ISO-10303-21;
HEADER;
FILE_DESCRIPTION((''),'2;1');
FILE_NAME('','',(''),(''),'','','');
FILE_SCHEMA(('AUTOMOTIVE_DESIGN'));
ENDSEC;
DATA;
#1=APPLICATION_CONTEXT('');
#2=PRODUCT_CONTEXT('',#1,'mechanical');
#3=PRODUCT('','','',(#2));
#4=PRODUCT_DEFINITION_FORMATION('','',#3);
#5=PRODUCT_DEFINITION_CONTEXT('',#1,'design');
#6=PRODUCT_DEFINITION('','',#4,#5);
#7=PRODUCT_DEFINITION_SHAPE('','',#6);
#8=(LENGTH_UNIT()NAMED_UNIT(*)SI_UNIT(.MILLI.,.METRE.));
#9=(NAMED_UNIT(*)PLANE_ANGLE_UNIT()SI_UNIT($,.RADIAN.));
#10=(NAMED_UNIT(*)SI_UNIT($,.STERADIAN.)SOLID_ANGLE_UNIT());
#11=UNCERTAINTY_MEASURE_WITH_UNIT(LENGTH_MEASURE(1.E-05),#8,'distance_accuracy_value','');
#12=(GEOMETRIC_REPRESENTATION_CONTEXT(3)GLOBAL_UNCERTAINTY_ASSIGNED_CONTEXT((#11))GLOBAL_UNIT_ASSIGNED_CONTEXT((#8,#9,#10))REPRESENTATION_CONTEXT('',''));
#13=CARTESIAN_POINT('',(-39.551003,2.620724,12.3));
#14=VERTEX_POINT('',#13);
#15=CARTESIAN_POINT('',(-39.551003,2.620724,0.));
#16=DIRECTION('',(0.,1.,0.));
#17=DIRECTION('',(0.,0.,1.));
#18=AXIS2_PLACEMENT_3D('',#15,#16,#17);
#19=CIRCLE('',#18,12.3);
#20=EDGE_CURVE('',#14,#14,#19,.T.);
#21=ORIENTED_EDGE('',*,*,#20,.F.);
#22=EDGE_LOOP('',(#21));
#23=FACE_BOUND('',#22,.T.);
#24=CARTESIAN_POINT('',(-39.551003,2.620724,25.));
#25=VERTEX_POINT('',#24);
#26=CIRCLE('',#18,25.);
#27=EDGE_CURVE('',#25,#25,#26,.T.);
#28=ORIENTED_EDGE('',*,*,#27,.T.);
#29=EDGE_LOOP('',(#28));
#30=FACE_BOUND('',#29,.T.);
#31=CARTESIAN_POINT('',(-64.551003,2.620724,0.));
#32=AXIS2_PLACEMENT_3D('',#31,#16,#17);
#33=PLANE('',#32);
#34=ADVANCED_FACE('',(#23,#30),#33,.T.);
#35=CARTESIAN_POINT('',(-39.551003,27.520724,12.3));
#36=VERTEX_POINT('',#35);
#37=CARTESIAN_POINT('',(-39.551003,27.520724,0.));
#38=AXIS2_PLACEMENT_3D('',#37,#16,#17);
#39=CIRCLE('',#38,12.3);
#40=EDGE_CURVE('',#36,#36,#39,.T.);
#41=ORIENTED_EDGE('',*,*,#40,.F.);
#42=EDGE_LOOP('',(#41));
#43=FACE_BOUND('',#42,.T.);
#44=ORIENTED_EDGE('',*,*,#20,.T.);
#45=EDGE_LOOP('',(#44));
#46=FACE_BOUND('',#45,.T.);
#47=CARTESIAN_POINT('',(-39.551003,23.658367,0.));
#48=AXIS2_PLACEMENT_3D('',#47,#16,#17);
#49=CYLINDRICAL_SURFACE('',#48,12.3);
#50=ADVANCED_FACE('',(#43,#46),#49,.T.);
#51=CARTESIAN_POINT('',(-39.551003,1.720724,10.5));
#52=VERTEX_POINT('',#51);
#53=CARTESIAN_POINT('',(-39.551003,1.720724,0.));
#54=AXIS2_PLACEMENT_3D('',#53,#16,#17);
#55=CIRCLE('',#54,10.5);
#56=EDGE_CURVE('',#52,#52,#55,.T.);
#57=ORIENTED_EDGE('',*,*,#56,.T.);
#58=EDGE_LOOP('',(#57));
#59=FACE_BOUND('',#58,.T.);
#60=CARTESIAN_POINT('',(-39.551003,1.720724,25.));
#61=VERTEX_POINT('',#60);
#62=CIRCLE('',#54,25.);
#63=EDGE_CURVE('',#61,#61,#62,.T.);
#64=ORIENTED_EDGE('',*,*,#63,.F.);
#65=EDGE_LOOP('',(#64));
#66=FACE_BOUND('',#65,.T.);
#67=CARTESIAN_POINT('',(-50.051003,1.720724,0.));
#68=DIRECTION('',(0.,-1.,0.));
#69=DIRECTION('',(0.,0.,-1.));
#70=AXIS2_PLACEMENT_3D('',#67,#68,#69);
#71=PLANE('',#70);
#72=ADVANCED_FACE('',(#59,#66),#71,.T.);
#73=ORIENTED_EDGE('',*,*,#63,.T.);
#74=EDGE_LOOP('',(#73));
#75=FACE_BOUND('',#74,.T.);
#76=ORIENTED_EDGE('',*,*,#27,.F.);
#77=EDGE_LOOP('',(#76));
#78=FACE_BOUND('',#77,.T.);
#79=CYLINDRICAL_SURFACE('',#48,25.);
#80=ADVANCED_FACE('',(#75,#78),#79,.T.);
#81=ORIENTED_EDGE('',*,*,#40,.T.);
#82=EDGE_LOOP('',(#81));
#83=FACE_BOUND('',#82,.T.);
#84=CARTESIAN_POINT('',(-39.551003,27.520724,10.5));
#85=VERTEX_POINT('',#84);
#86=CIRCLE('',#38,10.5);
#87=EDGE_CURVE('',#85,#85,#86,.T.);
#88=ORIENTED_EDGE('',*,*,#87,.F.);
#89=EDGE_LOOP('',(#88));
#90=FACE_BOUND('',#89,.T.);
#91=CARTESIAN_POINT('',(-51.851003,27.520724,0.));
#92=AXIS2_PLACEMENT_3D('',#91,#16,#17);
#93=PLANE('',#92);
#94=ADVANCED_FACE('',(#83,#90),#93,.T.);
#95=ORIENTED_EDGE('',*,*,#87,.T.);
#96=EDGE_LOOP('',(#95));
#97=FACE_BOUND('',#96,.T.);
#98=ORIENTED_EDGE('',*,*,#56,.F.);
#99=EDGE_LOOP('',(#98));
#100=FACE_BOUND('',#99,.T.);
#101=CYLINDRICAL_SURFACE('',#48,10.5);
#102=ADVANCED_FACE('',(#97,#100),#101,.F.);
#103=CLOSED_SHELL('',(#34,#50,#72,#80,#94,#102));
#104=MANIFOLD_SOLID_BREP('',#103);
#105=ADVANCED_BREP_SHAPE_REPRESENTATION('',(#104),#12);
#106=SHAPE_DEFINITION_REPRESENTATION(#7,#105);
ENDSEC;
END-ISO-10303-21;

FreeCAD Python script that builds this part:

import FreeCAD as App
import Part
import Sketcher
Q = App.Units.Quantity


def add_polygon(sketch, points):
    """Adds a closed chain of lines whose ends are joined by coincident constraints."""
    first, n = sketch.GeometryCount, len(points)
    for a, b in zip(points, points[1:] + points[:1]):
        sketch.addGeometry(Part.LineSegment(App.Vector(*a, 0), App.Vector(*b, 0)), False)
    for i in range(n):
        sketch.addConstraint(Sketcher.Constraint("Coincident", first + i, 2, first + (i + 1) % n, 1))

doc = App.newDocument("Part")
body = doc.addObject("PartDesign::Body", "Body")

# Sketch on XY plane
sketch1 = doc.addObject("Sketcher::SketchObject", "Sketch")
body.addObject(sketch1)
sketch1.AttachmentSupport = (doc.XY_Plane, [""])
sketch1.MapMode = "FlatFace"
add_polygon(sketch1, [(-64.6, 1.7), (-50.1, 1.7), (-50.1, 27.5), (-51.9, 27.5), (-51.9, 2.6), (-64.6, 2.6)])  # lines 0-5
sketch1.addGeometry(Part.LineSegment(App.Vector(-39.6, 27.5, 0), App.Vector(-39.6, 1.7, 0)), True)  # axis
sketch1.addConstraint([
    Sketcher.Constraint("Horizontal", 0),
    Sketcher.Constraint("Vertical", 1),
    Sketcher.Constraint("Horizontal", 2),
    Sketcher.Constraint("Vertical", 3),
    Sketcher.Constraint("Horizontal", 4),
    Sketcher.Constraint("Vertical", 5),
    Sketcher.Constraint("Vertical", 6),
    Sketcher.Constraint("Horizontal", 2, 2, 6, 1),
    Sketcher.Constraint("Horizontal", 5, 2, 6, 2),
    Sketcher.Constraint("DistanceX", 0, 1, 0, 2, Q("14.5 mm")),
    Sketcher.Constraint("DistanceX", 2, 2, 2, 1, Q("1.8 mm")),
    Sketcher.Constraint("DistanceY", 1, 1, 1, 2, Q("25.8 mm")),
    Sketcher.Constraint("DistanceY", 3, 2, 3, 1, Q("24.9 mm")),
    Sketcher.Constraint("DistanceX", 4, 2, 6, 1, Q("25 mm")),
    Sketcher.Constraint("DistanceX", 0, 2, -1, 1, Q("50.051003 mm")),
    Sketcher.Constraint("DistanceY", -1, 1, 0, 2, Q("1.720724 mm")),
])
revolution = doc.addObject("PartDesign::Revolution", "Revolution")
body.addObject(revolution)
revolution.Profile = sketch1
revolution.ReferenceAxis = (sketch1, ["Axis0"])
revolution.Angle = 360

doc.recompute()
